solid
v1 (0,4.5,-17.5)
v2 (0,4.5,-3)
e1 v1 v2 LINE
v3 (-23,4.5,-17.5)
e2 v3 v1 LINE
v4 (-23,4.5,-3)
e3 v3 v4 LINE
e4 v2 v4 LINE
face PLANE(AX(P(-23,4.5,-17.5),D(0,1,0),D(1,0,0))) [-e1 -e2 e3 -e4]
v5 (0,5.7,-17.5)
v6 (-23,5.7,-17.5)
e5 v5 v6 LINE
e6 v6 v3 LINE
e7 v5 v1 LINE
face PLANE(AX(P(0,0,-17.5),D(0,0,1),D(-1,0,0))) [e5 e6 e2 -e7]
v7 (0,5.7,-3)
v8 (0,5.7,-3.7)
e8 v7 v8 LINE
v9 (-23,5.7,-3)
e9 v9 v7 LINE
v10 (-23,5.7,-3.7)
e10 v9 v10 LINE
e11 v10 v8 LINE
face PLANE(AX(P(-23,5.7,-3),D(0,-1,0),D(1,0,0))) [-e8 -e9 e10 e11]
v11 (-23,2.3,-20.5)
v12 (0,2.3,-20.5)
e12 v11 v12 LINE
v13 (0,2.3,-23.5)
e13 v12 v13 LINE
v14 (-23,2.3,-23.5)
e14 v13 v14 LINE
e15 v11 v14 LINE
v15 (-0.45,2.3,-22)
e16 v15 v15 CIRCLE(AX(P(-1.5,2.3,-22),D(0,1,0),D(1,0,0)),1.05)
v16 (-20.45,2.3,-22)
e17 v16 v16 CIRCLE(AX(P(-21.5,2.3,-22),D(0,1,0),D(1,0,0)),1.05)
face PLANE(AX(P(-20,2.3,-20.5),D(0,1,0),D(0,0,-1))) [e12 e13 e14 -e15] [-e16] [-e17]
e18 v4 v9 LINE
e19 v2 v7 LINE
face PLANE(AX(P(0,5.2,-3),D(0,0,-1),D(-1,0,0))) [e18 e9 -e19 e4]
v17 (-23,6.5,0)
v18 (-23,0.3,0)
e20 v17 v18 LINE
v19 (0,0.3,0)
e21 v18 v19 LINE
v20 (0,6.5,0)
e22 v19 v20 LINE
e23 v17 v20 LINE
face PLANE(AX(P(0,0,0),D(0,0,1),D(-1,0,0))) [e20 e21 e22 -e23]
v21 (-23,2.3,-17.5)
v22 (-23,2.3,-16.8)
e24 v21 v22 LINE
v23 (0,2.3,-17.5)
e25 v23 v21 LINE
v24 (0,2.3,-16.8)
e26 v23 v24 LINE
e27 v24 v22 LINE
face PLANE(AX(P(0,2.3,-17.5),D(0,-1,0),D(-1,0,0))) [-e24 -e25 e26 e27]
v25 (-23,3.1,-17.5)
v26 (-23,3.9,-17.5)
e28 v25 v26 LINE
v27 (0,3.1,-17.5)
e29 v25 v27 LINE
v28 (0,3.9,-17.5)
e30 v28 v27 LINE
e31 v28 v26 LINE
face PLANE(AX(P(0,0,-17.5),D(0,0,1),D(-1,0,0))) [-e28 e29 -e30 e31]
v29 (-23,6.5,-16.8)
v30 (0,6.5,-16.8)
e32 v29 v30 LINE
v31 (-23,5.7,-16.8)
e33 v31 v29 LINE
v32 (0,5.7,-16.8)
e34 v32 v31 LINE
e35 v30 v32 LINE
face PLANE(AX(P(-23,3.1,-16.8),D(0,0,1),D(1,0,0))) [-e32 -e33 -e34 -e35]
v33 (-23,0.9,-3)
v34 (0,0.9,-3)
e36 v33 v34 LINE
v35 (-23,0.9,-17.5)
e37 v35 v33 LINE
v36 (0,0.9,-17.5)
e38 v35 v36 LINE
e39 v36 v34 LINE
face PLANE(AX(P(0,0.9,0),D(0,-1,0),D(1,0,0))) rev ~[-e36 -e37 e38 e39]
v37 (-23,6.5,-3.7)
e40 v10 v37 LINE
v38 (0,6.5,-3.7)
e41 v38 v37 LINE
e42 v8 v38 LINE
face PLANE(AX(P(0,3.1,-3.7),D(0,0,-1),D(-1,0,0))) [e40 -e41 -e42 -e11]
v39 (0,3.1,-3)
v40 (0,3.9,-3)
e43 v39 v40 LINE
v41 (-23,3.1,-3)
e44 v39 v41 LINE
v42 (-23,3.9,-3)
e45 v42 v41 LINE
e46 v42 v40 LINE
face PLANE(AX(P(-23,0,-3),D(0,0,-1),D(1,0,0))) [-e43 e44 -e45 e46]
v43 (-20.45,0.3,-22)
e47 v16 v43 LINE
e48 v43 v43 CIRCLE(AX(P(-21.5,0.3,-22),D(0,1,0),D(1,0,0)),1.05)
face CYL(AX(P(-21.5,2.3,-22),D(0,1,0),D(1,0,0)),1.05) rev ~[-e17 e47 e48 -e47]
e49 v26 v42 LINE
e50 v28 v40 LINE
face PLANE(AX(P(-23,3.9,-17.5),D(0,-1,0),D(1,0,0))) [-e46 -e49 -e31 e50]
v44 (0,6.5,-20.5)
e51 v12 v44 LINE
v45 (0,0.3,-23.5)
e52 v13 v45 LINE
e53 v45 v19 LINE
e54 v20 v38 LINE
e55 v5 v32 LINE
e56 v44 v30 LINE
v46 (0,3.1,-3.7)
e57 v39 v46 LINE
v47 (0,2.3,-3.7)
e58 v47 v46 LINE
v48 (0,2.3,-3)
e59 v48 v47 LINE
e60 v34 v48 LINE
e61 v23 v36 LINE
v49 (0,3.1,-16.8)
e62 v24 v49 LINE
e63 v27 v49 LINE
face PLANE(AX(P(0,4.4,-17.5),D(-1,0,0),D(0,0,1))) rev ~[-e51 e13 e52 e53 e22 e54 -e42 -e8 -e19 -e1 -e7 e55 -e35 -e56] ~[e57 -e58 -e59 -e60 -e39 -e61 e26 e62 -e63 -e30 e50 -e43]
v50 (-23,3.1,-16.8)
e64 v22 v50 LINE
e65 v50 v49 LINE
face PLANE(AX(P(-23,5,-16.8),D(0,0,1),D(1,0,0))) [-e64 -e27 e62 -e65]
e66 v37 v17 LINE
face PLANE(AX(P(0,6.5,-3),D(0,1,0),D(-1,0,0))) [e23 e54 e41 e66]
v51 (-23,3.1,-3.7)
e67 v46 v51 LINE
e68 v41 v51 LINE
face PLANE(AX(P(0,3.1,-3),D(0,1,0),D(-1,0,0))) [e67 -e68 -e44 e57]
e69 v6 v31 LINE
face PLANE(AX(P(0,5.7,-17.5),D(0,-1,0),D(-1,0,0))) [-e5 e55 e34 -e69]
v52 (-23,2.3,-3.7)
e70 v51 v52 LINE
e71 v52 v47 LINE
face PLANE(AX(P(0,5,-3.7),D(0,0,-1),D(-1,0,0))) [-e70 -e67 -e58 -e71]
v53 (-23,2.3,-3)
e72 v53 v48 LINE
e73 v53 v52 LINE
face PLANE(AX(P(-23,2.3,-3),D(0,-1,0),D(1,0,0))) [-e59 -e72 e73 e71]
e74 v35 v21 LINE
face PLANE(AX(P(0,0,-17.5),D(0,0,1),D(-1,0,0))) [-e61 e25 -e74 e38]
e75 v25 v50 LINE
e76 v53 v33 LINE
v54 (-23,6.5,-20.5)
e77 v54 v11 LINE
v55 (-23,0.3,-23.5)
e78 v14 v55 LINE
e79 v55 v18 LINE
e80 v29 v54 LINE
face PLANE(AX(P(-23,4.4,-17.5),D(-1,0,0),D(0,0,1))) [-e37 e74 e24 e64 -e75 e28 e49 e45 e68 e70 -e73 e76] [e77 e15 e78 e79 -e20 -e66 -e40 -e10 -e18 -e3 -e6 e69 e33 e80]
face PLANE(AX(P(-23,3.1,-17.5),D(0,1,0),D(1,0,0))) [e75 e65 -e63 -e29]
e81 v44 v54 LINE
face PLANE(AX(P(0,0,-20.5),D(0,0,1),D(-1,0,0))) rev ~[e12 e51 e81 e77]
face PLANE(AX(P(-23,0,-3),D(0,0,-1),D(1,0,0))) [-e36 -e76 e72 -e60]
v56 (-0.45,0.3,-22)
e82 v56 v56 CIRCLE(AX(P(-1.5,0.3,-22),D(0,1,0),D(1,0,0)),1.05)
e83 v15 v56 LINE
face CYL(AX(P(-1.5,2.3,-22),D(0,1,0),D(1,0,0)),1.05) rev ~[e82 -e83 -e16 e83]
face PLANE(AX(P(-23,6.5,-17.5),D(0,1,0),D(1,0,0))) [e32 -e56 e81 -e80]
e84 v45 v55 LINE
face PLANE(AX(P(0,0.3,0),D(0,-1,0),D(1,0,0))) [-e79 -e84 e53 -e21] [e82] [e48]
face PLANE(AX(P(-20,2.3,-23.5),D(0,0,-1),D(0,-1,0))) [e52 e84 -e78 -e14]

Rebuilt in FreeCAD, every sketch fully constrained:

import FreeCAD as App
import Part
import Sketcher
Q = App.Units.Quantity


def add_polygon(sketch, points):
    """Adds a closed chain of lines whose ends are joined by coincident constraints."""
    first, n = sketch.GeometryCount, len(points)
    for a, b in zip(points, points[1:] + points[:1]):
        sketch.addGeometry(Part.LineSegment(App.Vector(*a, 0), App.Vector(*b, 0)), False)
    for i in range(n):
        sketch.addConstraint(Sketcher.Constraint("Coincident", first + i, 2, first + (i + 1) % n, 1))

doc = App.newDocument("Part")
body = doc.addObject("PartDesign::Body", "Body")
body.AllowCompound = True

sketch1 = body.newObject("Sketcher::SketchObject", "Sketch")
sketch1.AttachmentSupport = (doc.getObject("XZ_Plane"), [""])
sketch1.MapMode = "FlatFace"
add_polygon(sketch1, [(-23, 0), (0, 0), (0, -3), (-23, -3)])
add_polygon(sketch1, [(-23, -17.5), (0, -17.5), (0, -20.5), (-23, -20.5)])
sketch1.addConstraint(Sketcher.Constraint("Horizontal", 0))
sketch1.addConstraint(Sketcher.Constraint("Vertical", 1))
sketch1.addConstraint(Sketcher.Constraint("Horizontal", 2))
sketch1.addConstraint(Sketcher.Constraint("Vertical", 3))
sketch1.addConstraint(Sketcher.Constraint("Horizontal", 4))
sketch1.addConstraint(Sketcher.Constraint("Vertical", 5))
sketch1.addConstraint(Sketcher.Constraint("Horizontal", 6))
sketch1.addConstraint(Sketcher.Constraint("Vertical", 7))
sketch1.addConstraint(Sketcher.Constraint("Coincident", 0, 2, -1, 1))
sketch1.addConstraint(Sketcher.Constraint("PointOnObject", 4, 2, -2))
sketch1.addConstraint(Sketcher.Constraint("Vertical", 3, 2, 6, 2))
sketch1.addConstraint(Sketcher.Constraint("Equal", 3, 5))
sketch1.addConstraint(Sketcher.Constraint("DistanceX", 0, 1, 0, 2, Q("23 mm")))
sketch1.addConstraint(Sketcher.Constraint("DistanceY", 1, 2, 1, 1, Q("3 mm")))
sketch1.addConstraint(Sketcher.Constraint("DistanceY", 4, 2, 1, 2, Q("14.5 mm")))
pad1 = body.newObject("PartDesign::Pad", "Pad")
pad1.Profile = sketch1
pad1.Length = 5
pad1.Reversed = True

sketch2 = body.newObject("Sketcher::SketchObject", "Sketch001")
sketch2.AttachmentSupport = (doc.getObject("XY_Plane"), [""])
sketch2.MapMode = "FlatFace"
sketch2.AttachmentOffset = App.Placement(App.Vector(0, 0, -3), App.Rotation())
add_polygon(sketch2, [(0, 1.8), (0, 1), (-23, 1), (-23, 1.8)])
sketch2.addConstraint(Sketcher.Constraint("Vertical", 0))
sketch2.addConstraint(Sketcher.Constraint("Horizontal", 1))
sketch2.addConstraint(Sketcher.Constraint("Vertical", 2))
sketch2.addConstraint(Sketcher.Constraint("Horizontal", 3))
sketch2.addConstraint(Sketcher.Constraint("PointOnObject", 0, 2, -2))
sketch2.addConstraint(Sketcher.Constraint("DistanceY", 0, 2, 0, 1, Q("0.8 mm")))
sketch2.addConstraint(Sketcher.Constraint("DistanceY", -1, 1, 0, 2, Q("1 mm")))
sketch2.addConstraint(Sketcher.Constraint("DistanceX", 1, 2, 1, 1, Q("23 mm")))
pad2 = body.newObject("PartDesign::Pad", "Pad001")
pad2.Profile = sketch2
pad2.Length = 14.5
pad2.Reversed = True

sketch3 = body.newObject("Sketcher::SketchObject", "Sketch002")
sketch3.AttachmentSupport = (doc.getObject("XY_Plane"), [""])
sketch3.MapMode = "FlatFace"
sketch3.AttachmentOffset = App.Placement(App.Vector(0, 0, -17.5), App.Rotation())
add_polygon(sketch3, [(-23, 3.1), (-23, 2.3), (0, 2.3), (0, 3.1)])
sketch3.addConstraint(Sketcher.Constraint("Vertical", 0))
sketch3.addConstraint(Sketcher.Constraint("Horizontal", 1))
sketch3.addConstraint(Sketcher.Constraint("Vertical", 2))
sketch3.addConstraint(Sketcher.Constraint("Horizontal", 3))
sketch3.addConstraint(Sketcher.Constraint("PointOnObject", 1, 2, -2))
sketch3.addConstraint(Sketcher.Constraint("DistanceY", 0, 2, 0, 1, Q("0.8 mm")))
sketch3.addConstraint(Sketcher.Constraint("DistanceX", 1, 1, 1, 2, Q("23 mm")))
sketch3.addConstraint(Sketcher.Constraint("DistanceY", -1, 1, 0, 2, Q("2.3 mm")))
pad3 = body.newObject("PartDesign::Pad", "Pad002")
pad3.Profile = sketch3
pad3.Length = 0.7

sketch4 = body.newObject("Sketcher::SketchObject", "Sketch003")
sketch4.AttachmentSupport = (doc.getObject("XY_Plane"), [""])
sketch4.MapMode = "FlatFace"
sketch4.AttachmentOffset = App.Placement(App.Vector(0, 0, -3), App.Rotation())
add_polygon(sketch4, [(0, 3.1), (0, 2.3), (-23, 2.3), (-23, 3.1)])
sketch4.addConstraint(Sketcher.Constraint("Vertical", 0))
sketch4.addConstraint(Sketcher.Constraint("Horizontal", 1))
sketch4.addConstraint(Sketcher.Constraint("Vertical", 2))
sketch4.addConstraint(Sketcher.Constraint("Horizontal", 3))
sketch4.addConstraint(Sketcher.Constraint("PointOnObject", 0, 2, -2))
sketch4.addConstraint(Sketcher.Constraint("DistanceX", 1, 2, 1, 1, Q("23 mm")))
sketch4.addConstraint(Sketcher.Constraint("DistanceY", 0, 2, 0, 1, Q("0.8 mm")))
sketch4.addConstraint(Sketcher.Constraint("DistanceY", -1, 1, 0, 2, Q("2.3 mm")))
pad4 = body.newObject("PartDesign::Pad", "Pad003")
pad4.Profile = sketch4
pad4.Length = 0.7
pad4.Reversed = True

sketch5 = body.newObject("Sketcher::SketchObject", "Sketch004")
sketch5.AttachmentSupport = (doc.getObject("XZ_Plane"), [""])
sketch5.MapMode = "FlatFace"
sketch5.AttachmentOffset = App.Placement(App.Vector(0, 0, -5), App.Rotation())
add_polygon(sketch5, [(-23, -3), (-23, 0), (0, 0), (0, -3)])
add_polygon(sketch5, [(-23, -20.5), (-23, -17.5), (0, -17.5), (0, -20.5)])
sketch5.addConstraint(Sketcher.Constraint("Vertical", 0))
sketch5.addConstraint(Sketcher.Constraint("Horizontal", 1))
sketch5.addConstraint(Sketcher.Constraint("Vertical", 2))
sketch5.addConstraint(Sketcher.Constraint("Horizontal", 3))
sketch5.addConstraint(Sketcher.Constraint("Vertical", 4))
sketch5.addConstraint(Sketcher.Constraint("Horizontal", 5))
sketch5.addConstraint(Sketcher.Constraint("Vertical", 6))
sketch5.addConstraint(Sketcher.Constraint("Horizontal", 7))
sketch5.addConstraint(Sketcher.Constraint("Coincident", 1, 2, -1, 1))
sketch5.addConstraint(Sketcher.Constraint("PointOnObject", 5, 2, -2))
sketch5.addConstraint(Sketcher.Constraint("Vertical", 3, 2, 4, 2))
sketch5.addConstraint(Sketcher.Constraint("Equal", 2, 4))
sketch5.addConstraint(Sketcher.Constraint("DistanceX", 1, 1, 1, 2, Q("23 mm")))
sketch5.addConstraint(Sketcher.Constraint("DistanceY", 0, 1, 0, 2, Q("3 mm")))
sketch5.addConstraint(Sketcher.Constraint("DistanceY", 4, 2, -1, 1, Q("17.5 mm")))
pad5 = body.newObject("PartDesign::Pad", "Pad004")
pad5.Profile = sketch5
pad5.Length = 1.5
pad5.Reversed = True

sketch6 = body.newObject("Sketcher::SketchObject", "Sketch005")
sketch6.AttachmentSupport = (doc.getObject("XY_Plane"), [""])
sketch6.MapMode = "FlatFace"
sketch6.AttachmentOffset = App.Placement(App.Vector(0, 0, -3), App.Rotation())
add_polygon(sketch6, [(-23, 6.5), (0, 6.5), (0, 5.7), (-23, 5.7)])
sketch6.addConstraint(Sketcher.Constraint("Horizontal", 0))
sketch6.addConstraint(Sketcher.Constraint("Vertical", 1))
sketch6.addConstraint(Sketcher.Constraint("Horizontal", 2))
sketch6.addConstraint(Sketcher.Constraint("Vertical", 3))
sketch6.addConstraint(Sketcher.Constraint("PointOnObject", 0, 2, -2))
sketch6.addConstraint(Sketcher.Constraint("DistanceY", 1, 2, 1, 1, Q("0.8 mm")))
sketch6.addConstraint(Sketcher.Constraint("DistanceX", 0, 1, 0, 2, Q("23 mm")))
sketch6.addConstraint(Sketcher.Constraint("DistanceY", -1, 1, 0, 2, Q("6.5 mm")))
pad6 = body.newObject("PartDesign::Pad", "Pad005")
pad6.Profile = sketch6
pad6.Length = 0.7
pad6.Reversed = True

sketch7 = body.newObject("Sketcher::SketchObject", "Sketch006")
sketch7.AttachmentSupport = (doc.getObject("XY_Plane"), [""])
sketch7.MapMode = "FlatFace"
sketch7.AttachmentOffset = App.Placement(App.Vector(0, 0, -17.5), App.Rotation())
add_polygon(sketch7, [(-23, 5.7), (0, 5.7), (0, 6.5), (-23, 6.5)])
sketch7.addConstraint(Sketcher.Constraint("Horizontal", 0))
sketch7.addConstraint(Sketcher.Constraint("Vertical", 1))
sketch7.addConstraint(Sketcher.Constraint("Horizontal", 2))
sketch7.addConstraint(Sketcher.Constraint("Vertical", 3))
sketch7.addConstraint(Sketcher.Constraint("PointOnObject", 0, 2, -2))
sketch7.addConstraint(Sketcher.Constraint("DistanceX", 0, 1, 0, 2, Q("23 mm")))
sketch7.addConstraint(Sketcher.Constraint("DistanceY", 1, 1, 1, 2, Q("0.8 mm")))
sketch7.addConstraint(Sketcher.Constraint("DistanceY", -1, 1, 0, 2, Q("5.7 mm")))
pad7 = body.newObject("PartDesign::Pad", "Pad006")
pad7.Profile = sketch7
pad7.Length = 0.7

sketch8 = body.newObject("Sketcher::SketchObject", "Sketch007")
sketch8.AttachmentSupport = (doc.getObject("XY_Plane"), [""])
sketch8.MapMode = "FlatFace"
sketch8.AttachmentOffset = App.Placement(App.Vector(0, 0, -17.5), App.Rotation())
add_polygon(sketch8, [(-23, 4.4), (0, 4.4), (0, 5.2), (-23, 5.2)])
sketch8.addConstraint(Sketcher.Constraint("Horizontal", 0))
sketch8.addConstraint(Sketcher.Constraint("Vertical", 1))
sketch8.addConstraint(Sketcher.Constraint("Horizontal", 2))
sketch8.addConstraint(Sketcher.Constraint("Vertical", 3))
sketch8.addConstraint(Sketcher.Constraint("PointOnObject", 0, 2, -2))
sketch8.addConstraint(Sketcher.Constraint("DistanceY", 1, 1, 1, 2, Q("0.8 mm")))
sketch8.addConstraint(Sketcher.Constraint("DistanceX", 0, 1, 0, 2, Q("23 mm")))
sketch8.addConstraint(Sketcher.Constraint("DistanceY", -1, 1, 0, 2, Q("4.4 mm")))
pad8 = body.newObject("PartDesign::Pad", "Pad007")
pad8.Profile = sketch8
pad8.Length = 14.5

sketch9 = body.newObject("Sketcher::SketchObject", "Sketch008")
sketch9.AttachmentSupport = (doc.getObject("XZ_Plane"), [""])
sketch9.MapMode = "FlatFace"
add_polygon(sketch9, [(0, -17.5), (-23, -17.5), (-23, -20.5), (0, -20.5)])
add_polygon(sketch9, [(0, 0), (-23, 0), (-23, -3), (0, -3)])
sketch9.addConstraint(Sketcher.Constraint("Horizontal", 0))
sketch9.addConstraint(Sketcher.Constraint("Vertical", 1))
sketch9.addConstraint(Sketcher.Constraint("Horizontal", 2))
sketch9.addConstraint(Sketcher.Constraint("Vertical", 3))
sketch9.addConstraint(Sketcher.Constraint("Horizontal", 4))
sketch9.addConstraint(Sketcher.Constraint("Vertical", 5))
sketch9.addConstraint(Sketcher.Constraint("Horizontal", 6))
sketch9.addConstraint(Sketcher.Constraint("Vertical", 7))
sketch9.addConstraint(Sketcher.Constraint("Coincident", 7, 2, -1, 1))
sketch9.addConstraint(Sketcher.Constraint("PointOnObject", 2, 2, -2))
sketch9.addConstraint(Sketcher.Constraint("Vertical", 1, 2, 4, 2))
sketch9.addConstraint(Sketcher.Constraint("Equal", 3, 5))
sketch9.addConstraint(Sketcher.Constraint("DistanceX", 0, 2, 0, 1, Q("23 mm")))
sketch9.addConstraint(Sketcher.Constraint("DistanceY", 1, 2, 1, 1, Q("3 mm")))
sketch9.addConstraint(Sketcher.Constraint("DistanceY", 0, 2, -1, 1, Q("17.5 mm")))
pocket1 = body.newObject("PartDesign::Pocket", "Pocket")
pocket1.Profile = sketch9
pocket1.Length = 0.3

sketch10 = body.newObject("Sketcher::SketchObject", "Sketch009")
sketch10.AttachmentSupport = (doc.getObject("XY_Plane"), [""])
sketch10.MapMode = "FlatFace"
sketch10.AttachmentOffset = App.Placement(App.Vector(0, 0, -20.5), App.Rotation())
add_polygon(sketch10, [(0, 0.3), (-3, 0.3), (-3, 2.3), (0, 2.3)])
sketch10.addConstraint(Sketcher.Constraint("Horizontal", 0))
sketch10.addConstraint(Sketcher.Constraint("Vertical", 1))
sketch10.addConstraint(Sketcher.Constraint("Horizontal", 2))
sketch10.addConstraint(Sketcher.Constraint("Vertical", 3))
sketch10.addConstraint(Sketcher.Constraint("PointOnObject", 2, 2, -2))
sketch10.addConstraint(Sketcher.Constraint("DistanceX", 0, 2, 0, 1, Q("3 mm")))
sketch10.addConstraint(Sketcher.Constraint("DistanceY", 1, 1, 1, 2, Q("2 mm")))
sketch10.addConstraint(Sketcher.Constraint("DistanceY", -1, 1, 0, 2, Q("0.3 mm")))
pad9 = body.newObject("PartDesign::Pad", "Pad008")
pad9.Profile = sketch10
pad9.Length = 3
pad9.Reversed = True

sketch11 = body.newObject("Sketcher::SketchObject", "Sketch010")
sketch11.AttachmentSupport = (doc.getObject("XY_Plane"), [""])
sketch11.MapMode = "FlatFace"
sketch11.AttachmentOffset = App.Placement(App.Vector(0, 0, -20.5), App.Rotation())
add_polygon(sketch11, [(-20, 0.3), (-23, 0.3), (-23, 2.3), (-20, 2.3)])
sketch11.addConstraint(Sketcher.Constraint("Horizontal", 0))
sketch11.addConstraint(Sketcher.Constraint("Vertical", 1))
sketch11.addConstraint(Sketcher.Constraint("Horizontal", 2))
sketch11.addConstraint(Sketcher.Constraint("Vertical", 3))
sketch11.addConstraint(Sketcher.Constraint("DistanceX", 0, 2, 0, 1, Q("3 mm")))
sketch11.addConstraint(Sketcher.Constraint("DistanceY", 1, 1, 1, 2, Q("2 mm")))
sketch11.addConstraint(Sketcher.Constraint("DistanceX", 0, 2, -1, 1, Q("23 mm")))
sketch11.addConstraint(Sketcher.Constraint("DistanceY", -1, 1, 0, 2, Q("0.3 mm")))
pad10 = body.newObject("PartDesign::Pad", "Pad009")
pad10.Profile = sketch11
pad10.Length = 3
pad10.Reversed = True

sketch12 = body.newObject("Sketcher::SketchObject", "Sketch011")
sketch12.AttachmentSupport = (doc.getObject("XZ_Plane"), [""])
sketch12.MapMode = "FlatFace"
sketch12.AttachmentOffset = App.Placement(App.Vector(0, 0, -2.3), App.Rotation())
sketch12.addGeometry(Part.Circle(App.Vector(-1.5, -22, 0), App.Vector(0, 0, 1), 1.05), False)
sketch12.addGeometry(Part.Circle(App.Vector(-21.5, -22, 0), App.Vector(0, 0, 1), 1.05), False)
sketch12.addConstraint(Sketcher.Constraint("Equal", 0, 1))
sketch12.addConstraint(Sketcher.Constraint("Horizontal", 0, 3, 1, 3))
sketch12.addConstraint(Sketcher.Constraint("Diameter", 0, Q("2.1 mm")))
sketch12.addConstraint(Sketcher.Constraint("DistanceX", 0, 3, -1, 1, Q("1.5 mm")))
sketch12.addConstraint(Sketcher.Constraint("DistanceY", 0, 3, -1, 1, Q("22 mm")))
sketch12.addConstraint(Sketcher.Constraint("DistanceX", 1, 3, 0, 3, Q("20 mm")))
pocket2 = body.newObject("PartDesign::Pocket", "Pocket001")
pocket2.Profile = sketch12
pocket2.Length = 2
pocket2.Reversed = True

sketch13 = body.newObject("Sketcher::SketchObject", "Sketch012")
sketch13.AttachmentSupport = (doc.getObject("YZ_Plane"), [""])
sketch13.MapMode = "FlatFace"
sketch13.AttachmentOffset = App.Placement(App.Vector(0, 0, -20), App.Rotation())
add_polygon(sketch13, [(2.3, -20.5), (0.3, -20.5), (0.3, -23.5), (2.3, -23.5)])
sketch13.addConstraint(Sketcher.Constraint("Horizontal", 0))
sketch13.addConstraint(Sketcher.Constraint("Vertical", 1))
sketch13.addConstraint(Sketcher.Constraint("Horizontal", 2))
sketch13.addConstraint(Sketcher.Constraint("Vertical", 3))
sketch13.addConstraint(Sketcher.Constraint("DistanceX", 0, 2, 0, 1, Q("2 mm")))
sketch13.addConstraint(Sketcher.Constraint("DistanceY", 1, 2, 1, 1, Q("3 mm")))
sketch13.addConstraint(Sketcher.Constraint("DistanceX", -1, 1, 0, 2, Q("0.3 mm")))
sketch13.addConstraint(Sketcher.Constraint("DistanceY", 0, 2, -1, 1, Q("20.5 mm")))
pad11 = body.newObject("PartDesign::Pad", "Pad010")
pad11.Profile = sketch13
pad11.Length = 17

sketch14 = body.newObject("Sketcher::SketchObject", "Sketch013")
sketch14.AttachmentSupport = (doc.getObject("XZ_Plane"), [""])
sketch14.MapMode = "FlatFace"
sketch14.AttachmentOffset = App.Placement(App.Vector(0, 0, -1), App.Rotation())
add_polygon(sketch14, [(-23, -17.5), (0, -17.5), (0, -3), (-23, -3)])
sketch14.addConstraint(Sketcher.Constraint("Horizontal", 0))
sketch14.addConstraint(Sketcher.Constraint("Vertical", 1))
sketch14.addConstraint(Sketcher.Constraint("Horizontal", 2))
sketch14.addConstraint(Sketcher.Constraint("Vertical", 3))
sketch14.addConstraint(Sketcher.Constraint("PointOnObject", 0, 2, -2))
sketch14.addConstraint(Sketcher.Constraint("DistanceX", 0, 1, 0, 2, Q("23 mm")))
sketch14.addConstraint(Sketcher.Constraint("DistanceY", 1, 1, 1, 2, Q("14.5 mm")))
sketch14.addConstraint(Sketcher.Constraint("DistanceY", 1, 2, -1, 1, Q("3 mm")))
pocket3 = body.newObject("PartDesign::Pocket", "Pocket002")
pocket3.Profile = sketch14
pocket3.Length = 0.8

sketch15 = body.newObject("Sketcher::SketchObject", "Sketch014")
sketch15.AttachmentSupport = (doc.getObject("XZ_Plane"), [""])
sketch15.MapMode = "FlatFace"
sketch15.AttachmentOffset = App.Placement(App.Vector(0, 0, -0.3), App.Rotation())
add_polygon(sketch15, [(-23, -17.5), (0, -17.5), (0, -3), (-23, -3)])
sketch15.addConstraint(Sketcher.Constraint("Horizontal", 0))
sketch15.addConstraint(Sketcher.Constraint("Vertical", 1))
sketch15.addConstraint(Sketcher.Constraint("Horizontal", 2))
sketch15.addConstraint(Sketcher.Constraint("Vertical", 3))
sketch15.addConstraint(Sketcher.Constraint("PointOnObject", 0, 2, -2))
sketch15.addConstraint(Sketcher.Constraint("DistanceX", 0, 1, 0, 2, Q("23 mm")))
sketch15.addConstraint(Sketcher.Constraint("DistanceY", 1, 1, 1, 2, Q("14.5 mm")))
sketch15.addConstraint(Sketcher.Constraint("DistanceY", 1, 2, -1, 1, Q("3 mm")))
pad12 = body.newObject("PartDesign::Pad", "Pad011")
pad12.Profile = sketch15
pad12.Length = 0.6
pad12.Reversed = True

sketch16 = body.newObject("Sketcher::SketchObject", "Sketch015")
sketch16.AttachmentSupport = (doc.getObject("XZ_Plane"), [""])
sketch16.MapMode = "FlatFace"
sketch16.AttachmentOffset = App.Placement(App.Vector(0, 0, -4.4), App.Rotation())
add_polygon(sketch16, [(0, -3), (-23, -3), (-23, -17.5), (0, -17.5)])
sketch16.addConstraint(Sketcher.Constraint("Horizontal", 0))
sketch16.addConstraint(Sketcher.Constraint("Vertical", 1))
sketch16.addConstraint(Sketcher.Constraint("Horizontal", 2))
sketch16.addConstraint(Sketcher.Constraint("Vertical", 3))
sketch16.addConstraint(Sketcher.Constraint("PointOnObject", 2, 2, -2))
sketch16.addConstraint(Sketcher.Constraint("DistanceX", 0, 2, 0, 1, Q("23 mm")))
sketch16.addConstraint(Sketcher.Constraint("DistanceY", 1, 2, 1, 1, Q("14.5 mm")))
sketch16.addConstraint(Sketcher.Constraint("DistanceY", 0, 2, -1, 1, Q("3 mm")))
pad13 = body.newObject("PartDesign::Pad", "Pad012")
pad13.Profile = sketch16
pad13.Length = 0.5

sketch17 = body.newObject("Sketcher::SketchObject", "Sketch016")
sketch17.AttachmentSupport = (doc.getObject("XZ_Plane"), [""])
sketch17.MapMode = "FlatFace"
sketch17.AttachmentOffset = App.Placement(App.Vector(0, 0, -5.2), App.Rotation())
add_polygon(sketch17, [(-23, -3), (0, -3), (0, -17.5), (-23, -17.5)])
sketch17.addConstraint(Sketcher.Constraint("Horizontal", 0))
sketch17.addConstraint(Sketcher.Constraint("Vertical", 1))
sketch17.addConstraint(Sketcher.Constraint("Horizontal", 2))
sketch17.addConstraint(Sketcher.Constraint("Vertical", 3))
sketch17.addConstraint(Sketcher.Constraint("PointOnObject", 0, 2, -2))
sketch17.addConstraint(Sketcher.Constraint("DistanceX", 0, 1, 0, 2, Q("23 mm")))
sketch17.addConstraint(Sketcher.Constraint("DistanceY", 1, 2, 1, 1, Q("14.5 mm")))
sketch17.addConstraint(Sketcher.Constraint("DistanceY", 0, 2, -1, 1, Q("3 mm")))
pocket4 = body.newObject("PartDesign::Pocket", "Pocket003")
pocket4.Profile = sketch17
pocket4.Length = 0.7
pocket4.Reversed = True

doc.recompute()
